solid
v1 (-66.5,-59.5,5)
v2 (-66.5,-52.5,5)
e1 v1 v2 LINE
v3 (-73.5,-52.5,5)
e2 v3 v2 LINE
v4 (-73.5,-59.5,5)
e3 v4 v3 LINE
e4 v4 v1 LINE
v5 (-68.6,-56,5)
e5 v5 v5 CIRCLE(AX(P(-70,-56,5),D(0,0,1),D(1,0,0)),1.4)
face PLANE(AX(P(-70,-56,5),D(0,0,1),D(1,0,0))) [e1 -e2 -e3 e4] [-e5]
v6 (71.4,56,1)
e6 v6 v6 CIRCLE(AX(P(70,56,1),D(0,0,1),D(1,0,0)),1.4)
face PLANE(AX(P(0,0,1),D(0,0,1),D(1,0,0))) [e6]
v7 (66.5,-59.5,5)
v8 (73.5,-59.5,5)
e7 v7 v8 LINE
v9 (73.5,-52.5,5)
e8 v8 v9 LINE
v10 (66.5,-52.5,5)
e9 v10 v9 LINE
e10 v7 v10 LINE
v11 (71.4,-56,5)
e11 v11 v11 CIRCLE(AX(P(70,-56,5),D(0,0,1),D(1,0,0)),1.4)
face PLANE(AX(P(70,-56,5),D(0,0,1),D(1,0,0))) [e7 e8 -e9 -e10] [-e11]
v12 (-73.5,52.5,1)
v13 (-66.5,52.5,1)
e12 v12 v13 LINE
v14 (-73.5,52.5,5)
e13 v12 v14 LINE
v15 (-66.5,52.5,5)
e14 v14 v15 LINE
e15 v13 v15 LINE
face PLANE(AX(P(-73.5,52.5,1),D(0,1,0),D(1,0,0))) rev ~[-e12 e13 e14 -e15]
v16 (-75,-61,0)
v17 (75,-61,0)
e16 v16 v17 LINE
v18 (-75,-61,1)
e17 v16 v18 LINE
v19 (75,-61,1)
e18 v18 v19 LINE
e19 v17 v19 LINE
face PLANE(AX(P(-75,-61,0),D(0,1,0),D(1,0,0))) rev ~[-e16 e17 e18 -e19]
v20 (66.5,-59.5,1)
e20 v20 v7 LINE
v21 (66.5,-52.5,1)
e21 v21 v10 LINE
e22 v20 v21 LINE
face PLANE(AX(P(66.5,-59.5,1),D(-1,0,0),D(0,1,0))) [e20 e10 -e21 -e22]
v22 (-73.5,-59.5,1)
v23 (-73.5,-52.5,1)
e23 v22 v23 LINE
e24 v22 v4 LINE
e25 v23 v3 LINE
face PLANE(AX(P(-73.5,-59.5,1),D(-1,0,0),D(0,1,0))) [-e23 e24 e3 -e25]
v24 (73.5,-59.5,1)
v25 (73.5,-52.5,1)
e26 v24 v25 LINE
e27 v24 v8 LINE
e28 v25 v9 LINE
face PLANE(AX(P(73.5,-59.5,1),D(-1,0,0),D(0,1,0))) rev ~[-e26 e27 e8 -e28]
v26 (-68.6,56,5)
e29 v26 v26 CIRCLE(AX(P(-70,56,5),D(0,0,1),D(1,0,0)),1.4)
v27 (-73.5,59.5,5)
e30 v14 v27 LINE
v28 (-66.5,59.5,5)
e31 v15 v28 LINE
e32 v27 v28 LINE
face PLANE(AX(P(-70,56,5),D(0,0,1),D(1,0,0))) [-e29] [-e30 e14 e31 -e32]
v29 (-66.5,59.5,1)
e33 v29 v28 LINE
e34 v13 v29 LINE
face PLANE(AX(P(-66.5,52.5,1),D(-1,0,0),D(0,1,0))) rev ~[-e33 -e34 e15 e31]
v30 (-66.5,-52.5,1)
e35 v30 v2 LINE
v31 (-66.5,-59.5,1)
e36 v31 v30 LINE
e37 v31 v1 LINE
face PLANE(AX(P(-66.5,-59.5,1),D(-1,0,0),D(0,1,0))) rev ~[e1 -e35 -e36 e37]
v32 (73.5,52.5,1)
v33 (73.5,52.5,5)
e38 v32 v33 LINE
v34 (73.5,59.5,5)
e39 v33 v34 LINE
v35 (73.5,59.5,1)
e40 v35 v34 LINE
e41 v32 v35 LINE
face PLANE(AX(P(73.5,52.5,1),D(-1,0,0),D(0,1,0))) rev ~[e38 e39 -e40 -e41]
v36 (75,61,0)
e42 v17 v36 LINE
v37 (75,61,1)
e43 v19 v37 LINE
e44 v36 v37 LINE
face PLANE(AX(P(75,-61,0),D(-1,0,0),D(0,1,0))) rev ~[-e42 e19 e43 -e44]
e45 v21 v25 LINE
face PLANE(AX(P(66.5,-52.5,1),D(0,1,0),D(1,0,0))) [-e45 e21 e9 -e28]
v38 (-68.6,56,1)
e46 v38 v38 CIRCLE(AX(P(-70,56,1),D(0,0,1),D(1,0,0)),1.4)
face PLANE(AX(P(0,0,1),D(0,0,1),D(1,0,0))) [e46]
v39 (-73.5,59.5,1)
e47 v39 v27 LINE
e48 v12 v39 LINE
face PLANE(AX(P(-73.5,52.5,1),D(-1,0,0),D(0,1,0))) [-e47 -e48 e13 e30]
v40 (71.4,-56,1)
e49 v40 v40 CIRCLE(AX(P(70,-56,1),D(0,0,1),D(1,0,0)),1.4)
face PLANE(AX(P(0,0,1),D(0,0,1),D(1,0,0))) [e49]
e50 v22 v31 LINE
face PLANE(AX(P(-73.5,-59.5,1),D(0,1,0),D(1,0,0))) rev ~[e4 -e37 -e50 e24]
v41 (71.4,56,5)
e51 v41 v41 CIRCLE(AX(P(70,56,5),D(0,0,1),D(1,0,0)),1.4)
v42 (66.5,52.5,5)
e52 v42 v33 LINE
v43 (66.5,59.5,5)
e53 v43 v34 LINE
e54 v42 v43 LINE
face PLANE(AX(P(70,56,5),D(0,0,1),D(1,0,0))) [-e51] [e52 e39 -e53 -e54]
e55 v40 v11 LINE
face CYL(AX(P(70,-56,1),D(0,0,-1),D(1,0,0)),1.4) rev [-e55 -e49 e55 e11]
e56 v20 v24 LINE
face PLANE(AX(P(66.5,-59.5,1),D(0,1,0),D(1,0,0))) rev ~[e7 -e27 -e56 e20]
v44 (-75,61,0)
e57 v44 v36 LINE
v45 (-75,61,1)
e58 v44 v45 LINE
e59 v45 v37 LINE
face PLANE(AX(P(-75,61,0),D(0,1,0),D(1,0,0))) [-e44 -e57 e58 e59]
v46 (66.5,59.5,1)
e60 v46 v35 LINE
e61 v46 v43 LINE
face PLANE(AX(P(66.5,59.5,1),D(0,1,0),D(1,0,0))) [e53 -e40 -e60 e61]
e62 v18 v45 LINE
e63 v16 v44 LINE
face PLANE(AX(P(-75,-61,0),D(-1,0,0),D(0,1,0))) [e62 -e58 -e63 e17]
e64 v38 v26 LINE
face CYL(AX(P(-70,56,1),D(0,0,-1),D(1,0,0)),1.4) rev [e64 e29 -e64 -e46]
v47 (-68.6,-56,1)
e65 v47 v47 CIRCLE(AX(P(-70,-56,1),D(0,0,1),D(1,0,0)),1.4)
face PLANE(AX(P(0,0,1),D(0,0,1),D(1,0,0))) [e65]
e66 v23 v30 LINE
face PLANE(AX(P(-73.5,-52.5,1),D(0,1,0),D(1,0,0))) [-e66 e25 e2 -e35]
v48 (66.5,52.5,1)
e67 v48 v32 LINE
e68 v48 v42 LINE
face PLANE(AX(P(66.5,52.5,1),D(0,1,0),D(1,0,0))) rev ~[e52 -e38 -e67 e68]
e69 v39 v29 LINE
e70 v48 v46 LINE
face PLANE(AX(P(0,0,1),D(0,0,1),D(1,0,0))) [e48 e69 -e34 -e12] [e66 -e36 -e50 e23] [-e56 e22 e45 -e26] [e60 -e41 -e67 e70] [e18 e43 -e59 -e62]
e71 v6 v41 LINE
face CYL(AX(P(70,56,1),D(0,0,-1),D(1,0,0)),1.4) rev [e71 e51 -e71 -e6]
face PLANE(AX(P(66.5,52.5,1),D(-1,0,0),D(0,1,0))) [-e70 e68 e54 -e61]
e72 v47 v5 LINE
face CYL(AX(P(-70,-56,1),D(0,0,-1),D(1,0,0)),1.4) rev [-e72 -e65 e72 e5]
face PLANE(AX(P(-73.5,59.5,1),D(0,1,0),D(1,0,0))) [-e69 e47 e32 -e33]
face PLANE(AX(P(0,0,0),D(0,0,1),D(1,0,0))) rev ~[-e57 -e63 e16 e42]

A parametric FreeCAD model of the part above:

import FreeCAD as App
import Part
import Sketcher
from FreeCAD import Vector

doc = App.newDocument("Part")
body = doc.addObject("PartDesign::Body", "Body")

# Sketch on XY plane
sketch1 = body.newObject("Sketcher::SketchObject", "Sketch")
sketch1.AttachmentSupport = (doc.getObject("XY_Plane"), [""])
sketch1.MapMode = "FlatFace"
sketch1.addGeometry(Part.LineSegment(Vector(-75, 61, 0), Vector(-75, -61, 0)), False)
sketch1.addGeometry(Part.LineSegment(Vector(-75, -61, 0), Vector(75, -61, 0)), False)
sketch1.addGeometry(Part.LineSegment(Vector(75, -61, 0), Vector(75, 61, 0)), False)
sketch1.addGeometry(Part.LineSegment(Vector(75, 61, 0), Vector(-75, 61, 0)), False)
sketch1.addConstraint(Sketcher.Constraint("Coincident", 0, 2, 1, 1))
sketch1.addConstraint(Sketcher.Constraint("Coincident", 1, 2, 2, 1))
sketch1.addConstraint(Sketcher.Constraint("Coincident", 2, 2, 3, 1))
sketch1.addConstraint(Sketcher.Constraint("Coincident", 3, 2, 0, 1))
sketch1.addConstraint(Sketcher.Constraint("Vertical", 0))
sketch1.addConstraint(Sketcher.Constraint("Horizontal", 1))
sketch1.addConstraint(Sketcher.Constraint("Vertical", 2))
sketch1.addConstraint(Sketcher.Constraint("Horizontal", 3))
sketch1.addConstraint(Sketcher.Constraint("Symmetric", 0, 2, 2, 2, -1, 1))
sketch1.addConstraint(Sketcher.Constraint("DistanceX", 1, 1, 1, 2, 150.0))
sketch1.addConstraint(Sketcher.Constraint("DistanceY", 0, 2, 0, 1, 122.0))
pad1 = body.newObject("PartDesign::Pad", "Pad")
pad1.Profile = sketch1
pad1.Length = 1

# Sketch on XY plane
sketch2 = body.newObject("Sketcher::SketchObject", "Sketch001")
sketch2.AttachmentSupport = (doc.getObject("XY_Plane"), [""])
sketch2.MapMode = "FlatFace"
sketch2.AttachmentOffset = App.Placement(Vector(0, 0, 1), App.Rotation())
sketch2.addGeometry(Part.LineSegment(Vector(-73.5, 59.5, 0), Vector(-73.5, 52.5, 0)), False)
sketch2.addGeometry(Part.LineSegment(Vector(-73.5, 52.5, 0), Vector(-66.5, 52.5, 0)), False)
sketch2.addGeometry(Part.LineSegment(Vector(-66.5, 52.5, 0), Vector(-66.5, 59.5, 0)), False)
sketch2.addGeometry(Part.LineSegment(Vector(-66.5, 59.5, 0), Vector(-73.5, 59.5, 0)), False)
sketch2.addGeometry(Part.Circle(Vector(-70, 56, 0), Vector(0, 0, 1), 1.4), False)
sketch2.addGeometry(Part.LineSegment(Vector(66.5, 59.5, 0), Vector(66.5, 52.5, 0)), False)
sketch2.addGeometry(Part.LineSegment(Vector(66.5, 52.5, 0), Vector(73.5, 52.5, 0)), False)
sketch2.addGeometry(Part.LineSegment(Vector(73.5, 52.5, 0), Vector(73.5, 59.5, 0)), False)
sketch2.addGeometry(Part.LineSegment(Vector(73.5, 59.5, 0), Vector(66.5, 59.5, 0)), False)
sketch2.addGeometry(Part.Circle(Vector(70, 56, 0), Vector(0, 0, 1), 1.4), False)
sketch2.addGeometry(Part.LineSegment(Vector(-73.5, -52.5, 0), Vector(-73.5, -59.5, 0)), False)
sketch2.addGeometry(Part.LineSegment(Vector(-73.5, -59.5, 0), Vector(-66.5, -59.5, 0)), False)
sketch2.addGeometry(Part.LineSegment(Vector(-66.5, -59.5, 0), Vector(-66.5, -52.5, 0)), False)
sketch2.addGeometry(Part.LineSegment(Vector(-66.5, -52.5, 0), Vector(-73.5, -52.5, 0)), False)
sketch2.addGeometry(Part.Circle(Vector(-70, -56, 0), Vector(0, 0, 1), 1.4), False)
sketch2.addGeometry(Part.LineSegment(Vector(66.5, -52.5, 0), Vector(66.5, -59.5, 0)), False)
sketch2.addGeometry(Part.LineSegment(Vector(66.5, -59.5, 0), Vector(73.5, -59.5, 0)), False)
sketch2.addGeometry(Part.LineSegment(Vector(73.5, -59.5, 0), Vector(73.5, -52.5, 0)), False)
sketch2.addGeometry(Part.LineSegment(Vector(73.5, -52.5, 0), Vector(66.5, -52.5, 0)), False)
sketch2.addGeometry(Part.Circle(Vector(70, -56, 0), Vector(0, 0, 1), 1.4), False)
sketch2.addConstraint(Sketcher.Constraint("Coincident", 0, 2, 1, 1))
sketch2.addConstraint(Sketcher.Constraint("Coincident", 1, 2, 2, 1))
sketch2.addConstraint(Sketcher.Constraint("Coincident", 2, 2, 3, 1))
sketch2.addConstraint(Sketcher.Constraint("Coincident", 3, 2, 0, 1))
sketch2.addConstraint(Sketcher.Constraint("Coincident", 5, 2, 6, 1))
sketch2.addConstraint(Sketcher.Constraint("Coincident", 6, 2, 7, 1))
sketch2.addConstraint(Sketcher.Constraint("Coincident", 7, 2, 8, 1))
sketch2.addConstraint(Sketcher.Constraint("Coincident", 8, 2, 5, 1))
sketch2.addConstraint(Sketcher.Constraint("Coincident", 10, 2, 11, 1))
sketch2.addConstraint(Sketcher.Constraint("Coincident", 11, 2, 12, 1))
sketch2.addConstraint(Sketcher.Constraint("Coincident", 12, 2, 13, 1))
sketch2.addConstraint(Sketcher.Constraint("Coincident", 13, 2, 10, 1))
sketch2.addConstraint(Sketcher.Constraint("Coincident", 15, 2, 16, 1))
sketch2.addConstraint(Sketcher.Constraint("Coincident", 16, 2, 17, 1))
sketch2.addConstraint(Sketcher.Constraint("Coincident", 17, 2, 18, 1))
sketch2.addConstraint(Sketcher.Constraint("Coincident", 18, 2, 15, 1))
sketch2.addConstraint(Sketcher.Constraint("Vertical", 0))
sketch2.addConstraint(Sketcher.Constraint("Horizontal", 1))
sketch2.addConstraint(Sketcher.Constraint("Vertical", 2))
sketch2.addConstraint(Sketcher.Constraint("Horizontal", 3))
sketch2.addConstraint(Sketcher.Constraint("Vertical", 5))
sketch2.addConstraint(Sketcher.Constraint("Horizontal", 6))
sketch2.addConstraint(Sketcher.Constraint("Vertical", 7))
sketch2.addConstraint(Sketcher.Constraint("Horizontal", 8))
sketch2.addConstraint(Sketcher.Constraint("Vertical", 10))
sketch2.addConstraint(Sketcher.Constraint("Horizontal", 11))
sketch2.addConstraint(Sketcher.Constraint("Vertical", 12))
sketch2.addConstraint(Sketcher.Constraint("Horizontal", 13))
sketch2.addConstraint(Sketcher.Constraint("Vertical", 15))
sketch2.addConstraint(Sketcher.Constraint("Horizontal", 16))
sketch2.addConstraint(Sketcher.Constraint("Vertical", 17))
sketch2.addConstraint(Sketcher.Constraint("Horizontal", 18))
sketch2.addConstraint(Sketcher.Constraint("Equal", 4, 9))
sketch2.addConstraint(Sketcher.Constraint("Equal", 9, 14))
sketch2.addConstraint(Sketcher.Constraint("Equal", 14, 19))
sketch2.addConstraint(Sketcher.Constraint("Symmetric", 9, 3, 14, 3, -1, 1))
sketch2.addConstraint(Sketcher.Constraint("Symmetric", 4, 3, 19, 3, -1, 1))
sketch2.addConstraint(Sketcher.Constraint("Symmetric", 7, 2, 10, 2, -1, 1))
sketch2.addConstraint(Sketcher.Constraint("Symmetric", 5, 2, 12, 2, -1, 1))
sketch2.addConstraint(Sketcher.Constraint("Symmetric", 2, 2, 15, 2, -1, 1))
sketch2.addConstraint(Sketcher.Constraint("Symmetric", 0, 2, 17, 2, -1, 1))
sketch2.addConstraint(Sketcher.Constraint("Symmetric", 4, 3, 9, 3, -2))
sketch2.addConstraint(Sketcher.Constraint("Symmetric", 1, 2, 5, 2, -2))
sketch2.addConstraint(Sketcher.Constraint("Symmetric", 3, 2, 7, 2, -2))
sketch2.addConstraint(Sketcher.Constraint("Equal", 18, 0))
sketch2.addConstraint(Sketcher.Constraint("Diameter", 4, 2.8))
sketch2.addConstraint(Sketcher.Constraint("DistanceX", 1, 1, 1, 2, 7.0))
sketch2.addConstraint(Sketcher.Constraint("DistanceX", 4, 3, -1, 1, 70.0))
sketch2.addConstraint(Sketcher.Constraint("DistanceY", -1, 1, 4, 3, 56.0))
sketch2.addConstraint(Sketcher.Constraint("DistanceX", 1, 2, 5, 2, 133.0))
sketch2.addConstraint(Sketcher.Constraint("DistanceY", 10, 2, 0, 2, 112.0))
pad2 = body.newObject("PartDesign::Pad", "Pad001")
pad2.Profile = sketch2
pad2.Length = 4

doc.recompute()
